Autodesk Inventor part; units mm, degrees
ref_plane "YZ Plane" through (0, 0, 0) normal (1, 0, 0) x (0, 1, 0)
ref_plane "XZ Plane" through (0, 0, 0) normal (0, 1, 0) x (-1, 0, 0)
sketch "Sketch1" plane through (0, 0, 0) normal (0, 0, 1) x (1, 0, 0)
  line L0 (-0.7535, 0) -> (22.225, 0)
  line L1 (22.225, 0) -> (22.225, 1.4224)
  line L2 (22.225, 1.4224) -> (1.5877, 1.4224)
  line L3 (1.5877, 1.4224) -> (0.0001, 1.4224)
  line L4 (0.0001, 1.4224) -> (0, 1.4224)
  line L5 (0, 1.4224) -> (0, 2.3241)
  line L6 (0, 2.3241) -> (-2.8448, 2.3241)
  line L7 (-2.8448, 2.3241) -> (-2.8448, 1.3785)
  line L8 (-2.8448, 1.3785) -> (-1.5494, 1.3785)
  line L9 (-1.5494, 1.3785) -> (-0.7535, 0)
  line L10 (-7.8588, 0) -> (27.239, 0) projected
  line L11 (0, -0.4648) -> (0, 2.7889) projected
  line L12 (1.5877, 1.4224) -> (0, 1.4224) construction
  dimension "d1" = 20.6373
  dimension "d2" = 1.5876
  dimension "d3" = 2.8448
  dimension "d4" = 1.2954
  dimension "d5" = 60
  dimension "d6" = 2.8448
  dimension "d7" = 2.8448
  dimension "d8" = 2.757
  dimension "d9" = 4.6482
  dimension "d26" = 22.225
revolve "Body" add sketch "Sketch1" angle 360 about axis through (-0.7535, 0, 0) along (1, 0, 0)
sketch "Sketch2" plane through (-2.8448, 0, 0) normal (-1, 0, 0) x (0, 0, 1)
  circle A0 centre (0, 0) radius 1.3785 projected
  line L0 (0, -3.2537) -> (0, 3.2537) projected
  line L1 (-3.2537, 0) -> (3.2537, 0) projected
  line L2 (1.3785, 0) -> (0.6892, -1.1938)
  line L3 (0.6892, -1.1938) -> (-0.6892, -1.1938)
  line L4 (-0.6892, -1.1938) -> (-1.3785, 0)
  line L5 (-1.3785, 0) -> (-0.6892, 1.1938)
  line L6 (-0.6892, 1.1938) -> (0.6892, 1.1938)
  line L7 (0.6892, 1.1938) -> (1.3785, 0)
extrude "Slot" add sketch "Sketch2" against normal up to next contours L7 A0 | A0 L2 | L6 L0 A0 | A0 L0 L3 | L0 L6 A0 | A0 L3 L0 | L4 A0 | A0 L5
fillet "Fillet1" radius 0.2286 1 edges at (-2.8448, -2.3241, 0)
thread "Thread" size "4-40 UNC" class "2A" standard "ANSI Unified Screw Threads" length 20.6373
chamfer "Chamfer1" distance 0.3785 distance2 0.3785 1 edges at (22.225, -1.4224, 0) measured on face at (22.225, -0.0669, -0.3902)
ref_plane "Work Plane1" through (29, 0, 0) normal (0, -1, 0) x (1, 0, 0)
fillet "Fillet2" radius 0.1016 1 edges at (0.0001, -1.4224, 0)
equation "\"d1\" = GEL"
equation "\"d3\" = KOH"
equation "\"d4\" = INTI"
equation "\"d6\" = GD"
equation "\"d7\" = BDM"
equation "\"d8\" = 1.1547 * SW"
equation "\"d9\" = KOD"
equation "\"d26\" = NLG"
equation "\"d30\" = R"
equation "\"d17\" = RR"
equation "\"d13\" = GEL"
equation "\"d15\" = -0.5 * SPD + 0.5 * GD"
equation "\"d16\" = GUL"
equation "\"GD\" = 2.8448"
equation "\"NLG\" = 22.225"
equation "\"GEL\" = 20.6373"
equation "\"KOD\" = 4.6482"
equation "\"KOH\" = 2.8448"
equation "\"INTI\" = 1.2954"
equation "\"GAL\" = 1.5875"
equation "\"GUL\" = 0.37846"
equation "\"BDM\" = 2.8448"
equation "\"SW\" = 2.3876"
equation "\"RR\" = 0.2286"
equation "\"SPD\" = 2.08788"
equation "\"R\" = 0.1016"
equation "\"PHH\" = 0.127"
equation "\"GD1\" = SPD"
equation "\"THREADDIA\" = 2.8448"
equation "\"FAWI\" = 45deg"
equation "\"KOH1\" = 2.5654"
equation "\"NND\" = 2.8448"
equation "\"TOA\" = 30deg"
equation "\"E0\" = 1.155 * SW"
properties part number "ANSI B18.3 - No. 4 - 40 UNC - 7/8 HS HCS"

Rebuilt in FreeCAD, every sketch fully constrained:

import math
import FreeCAD as App
import Part
import Sketcher

V = App.Vector
Q = App.Units.Quantity


def edges_at(feature, points):
    """Names of the edges that pass closest to the given points."""
    edges = feature.Shape.Edges
    near = lambda p: min(range(len(edges)), key=lambda i: edges[i].distToShape(Part.Vertex(*p))[0])
    return sorted({f"Edge{near(p) + 1}" for p in points})


def add_polygon(sketch, points):
    """Adds a closed chain of lines whose ends are joined by coincident constraints."""
    first, n = sketch.GeometryCount, len(points)
    for a, b in zip(points, points[1:] + points[:1]):
        sketch.addGeometry(Part.LineSegment(App.Vector(*a, 0), App.Vector(*b, 0)), False)
    for i in range(n):
        sketch.addConstraint(Sketcher.Constraint("Coincident", first + i, 2, first + (i + 1) % n, 1))

doc = App.newDocument("Part")
body = doc.addObject("PartDesign::Body", "Body")

sketch1 = doc.addObject("Sketcher::SketchObject", "Sketch")
body.addObject(sketch1)
sketch1.AttachmentSupport = (doc.XY_Plane, [""])
sketch1.MapMode = "FlatFace"
add_polygon(sketch1, [(-1.5, 1.4), (-0.8, 0), (22.2, 0), (22.2, 1.4), (0, 1.4), (0, 2.3), (-2.8, 2.3), (-2.8, 1.4)])
sketch1.addConstraint(Sketcher.Constraint("Horizontal", 1))
sketch1.addConstraint(Sketcher.Constraint("Vertical", 2))
sketch1.addConstraint(Sketcher.Constraint("Horizontal", 3))
sketch1.addConstraint(Sketcher.Constraint("Vertical", 4))
sketch1.addConstraint(Sketcher.Constraint("Horizontal", 5))
sketch1.addConstraint(Sketcher.Constraint("Vertical", 6))
sketch1.addConstraint(Sketcher.Constraint("Horizontal", 7))
sketch1.addConstraint(Sketcher.Constraint("PointOnObject", 0, 2, -1))
sketch1.addConstraint(Sketcher.Constraint("PointOnObject", 3, 2, -2))
sketch1.addConstraint(Sketcher.Constraint("DistanceX", 3, 2, 3, 1, Q("0.875 in")))
sketch1.addConstraint(Sketcher.Constraint("DistanceX", 5, 2, 5, 1, Q("0.112 in")))
sketch1.addConstraint(Sketcher.Constraint("DistanceX", 7, 1, 7, 2, Q("0.051 in")))
sketch1.addConstraint(Sketcher.Constraint("Angle", 0, Q("-59.9993 deg")))
sketch1.addConstraint(Sketcher.Constraint("DistanceY", 2, 1, 2, 2, Q("0.056 in")))
sketch1.addConstraint(Sketcher.Constraint("DistanceY", 4, 1, 4, 2, Q("0.0355 in")))
sketch1.addConstraint(Sketcher.Constraint("DistanceX", 1, 1, 1, 2, 22.9785))
revolution = doc.addObject("PartDesign::Revolution", "Revolution")
body.addObject(revolution)
revolution.Profile = sketch1
revolution.ReferenceAxis = (sketch1, ["H_Axis"])
revolution.Angle = 360

sketch2 = doc.addObject("Sketcher::SketchObject", "Sketch001")
body.addObject(sketch2)
sketch2.AttachmentSupport = (doc.YZ_Plane, [""])
sketch2.MapMode = "FlatFace"
sketch2.AttachmentOffset = App.Placement(V(0, 0, -0.112 * 25.4), App.Rotation())
sketch2.addGeometry(Part.LineSegment(V(1.2, 0.7, 0), V(0, 1.4, 0)), False)
sketch2.addGeometry(Part.ArcOfCircle(Part.Circle(V(0, 0, 0), V(0, 0, 1), 1.4), math.radians(30), math.radians(90)), False)
sketch2.addGeometry(Part.ArcOfCircle(Part.Circle(V(0, 0, 0), V(0, 0, 1), 1.4), math.radians(90), math.radians(150)), False)
sketch2.addGeometry(Part.LineSegment(V(0, 1.4, 0), V(-1.2, 0.7, 0)), False)
sketch2.addGeometry(Part.ArcOfCircle(Part.Circle(V(0, 0, 0), V(0, 0, 1), 1.4), math.radians(-30), math.radians(30)), False)
sketch2.addGeometry(Part.LineSegment(V(1.2, 0.7, 0), V(1.2, -0.7, 0)), False)
sketch2.addGeometry(Part.LineSegment(V(-1.2, 0.7, 0), V(-1.2, -0.7, 0)), False)
sketch2.addGeometry(Part.ArcOfCircle(Part.Circle(V(0, 0, 0), V(0, 0, 1), 1.4), math.radians(150), math.radians(210)), False)
sketch2.addGeometry(Part.LineSegment(V(-1.2, -0.7, 0), V(0, -1.4, 0)), False)
sketch2.addGeometry(Part.ArcOfCircle(Part.Circle(V(0, 0, 0), V(0, 0, 1), 1.4), math.radians(-150), math.radians(-90)), False)
sketch2.addGeometry(Part.ArcOfCircle(Part.Circle(V(0, 0, 0), V(0, 0, 1), 1.4), math.radians(-90), math.radians(-30)), False)
sketch2.addGeometry(Part.LineSegment(V(0, -1.4, 0), V(1.2, -0.7, 0)), False)
sketch2.addConstraint(Sketcher.Constraint("Coincident", 0, 1, 1, 1))
sketch2.addConstraint(Sketcher.Constraint("Coincident", 1, 2, 0, 2))
sketch2.addConstraint(Sketcher.Constraint("Coincident", 2, 1, 3, 1))
sketch2.addConstraint(Sketcher.Constraint("Coincident", 3, 2, 2, 2))
sketch2.addConstraint(Sketcher.Constraint("Coincident", 4, 1, 5, 2))
sketch2.addConstraint(Sketcher.Constraint("Coincident", 5, 1, 4, 2))
sketch2.addConstraint(Sketcher.Constraint("Coincident", 6, 1, 7, 1))
sketch2.addConstraint(Sketcher.Constraint("Coincident", 7, 2, 6, 2))
sketch2.addConstraint(Sketcher.Constraint("Coincident", 8, 1, 9, 1))
sketch2.addConstraint(Sketcher.Constraint("Coincident", 9, 2, 8, 2))
sketch2.addConstraint(Sketcher.Constraint("Coincident", 10, 1, 11, 1))
sketch2.addConstraint(Sketcher.Constraint("Coincident", 11, 2, 10, 2))
sketch2.addConstraint(Sketcher.Constraint("Vertical", 5))
sketch2.addConstraint(Sketcher.Constraint("Vertical", 6))
sketch2.addConstraint(Sketcher.Constraint("Coincident", 1, 3, -1, 1))
sketch2.addConstraint(Sketcher.Constraint("Coincident", 2, 3, -1, 1))
sketch2.addConstraint(Sketcher.Constraint("Coincident", 4, 3, -1, 1))
sketch2.addConstraint(Sketcher.Constraint("Coincident", 7, 3, -1, 1))
sketch2.addConstraint(Sketcher.Constraint("Coincident", 9, 3, -1, 1))
sketch2.addConstraint(Sketcher.Constraint("Coincident", 10, 3, -1, 1))
sketch2.addConstraint(Sketcher.Constraint("Coincident", 2, 1, 1, 2))
sketch2.addConstraint(Sketcher.Constraint("Coincident", 5, 1, 0, 1))
sketch2.addConstraint(Sketcher.Constraint("Coincident", 6, 1, 3, 2))
sketch2.addConstraint(Sketcher.Constraint("Coincident", 8, 1, 7, 2))
sketch2.addConstraint(Sketcher.Constraint("Coincident", 10, 1, 9, 2))
sketch2.addConstraint(Sketcher.Constraint("PointOnObject", 1, 2, -2))
sketch2.addConstraint(Sketcher.Constraint("PointOnObject", 9, 2, -2))
sketch2.addConstraint(Sketcher.Constraint("Parallel", 0, 8))
sketch2.addConstraint(Sketcher.Constraint("Parallel", 3, 11))
sketch2.addConstraint(Sketcher.Constraint("Radius", 1, 1.3785))
sketch2.addConstraint(Sketcher.Constraint("DistanceX", -1, 1, 0, 1, Q("0.047 in")))
pad1 = doc.addObject("PartDesign::Pad", "Pad")
body.addObject(pad1)
pad1.Profile = sketch2
pad1.Type = "UpToFirst"
doc.recompute()

fillet = doc.addObject("PartDesign::Fillet", "Fillet")
body.addObject(fillet)
fillet.Base = (pad1, edges_at(pad1, [(-2.845, -2.324, 0)]))
fillet.Radius = Q("0.009 in")
doc.recompute()

chamfer = doc.addObject("PartDesign::Chamfer", "Chamfer")
body.addObject(chamfer)
chamfer.Base = (fillet, edges_at(fillet, [(22.225, -1.422, 0)]))
chamfer.ChamferType = "Two distances"
chamfer.Size = Q("0.0149016 in")
chamfer.Size2 = Q("0.0149016 in")
doc.recompute()

fillet2 = doc.addObject("PartDesign::Fillet", "Fillet001")
body.addObject(fillet2)
fillet2.Base = (chamfer, edges_at(chamfer, [(0, -1.422, 0)]))
fillet2.Radius = Q("0.004 in")

doc.recompute()
